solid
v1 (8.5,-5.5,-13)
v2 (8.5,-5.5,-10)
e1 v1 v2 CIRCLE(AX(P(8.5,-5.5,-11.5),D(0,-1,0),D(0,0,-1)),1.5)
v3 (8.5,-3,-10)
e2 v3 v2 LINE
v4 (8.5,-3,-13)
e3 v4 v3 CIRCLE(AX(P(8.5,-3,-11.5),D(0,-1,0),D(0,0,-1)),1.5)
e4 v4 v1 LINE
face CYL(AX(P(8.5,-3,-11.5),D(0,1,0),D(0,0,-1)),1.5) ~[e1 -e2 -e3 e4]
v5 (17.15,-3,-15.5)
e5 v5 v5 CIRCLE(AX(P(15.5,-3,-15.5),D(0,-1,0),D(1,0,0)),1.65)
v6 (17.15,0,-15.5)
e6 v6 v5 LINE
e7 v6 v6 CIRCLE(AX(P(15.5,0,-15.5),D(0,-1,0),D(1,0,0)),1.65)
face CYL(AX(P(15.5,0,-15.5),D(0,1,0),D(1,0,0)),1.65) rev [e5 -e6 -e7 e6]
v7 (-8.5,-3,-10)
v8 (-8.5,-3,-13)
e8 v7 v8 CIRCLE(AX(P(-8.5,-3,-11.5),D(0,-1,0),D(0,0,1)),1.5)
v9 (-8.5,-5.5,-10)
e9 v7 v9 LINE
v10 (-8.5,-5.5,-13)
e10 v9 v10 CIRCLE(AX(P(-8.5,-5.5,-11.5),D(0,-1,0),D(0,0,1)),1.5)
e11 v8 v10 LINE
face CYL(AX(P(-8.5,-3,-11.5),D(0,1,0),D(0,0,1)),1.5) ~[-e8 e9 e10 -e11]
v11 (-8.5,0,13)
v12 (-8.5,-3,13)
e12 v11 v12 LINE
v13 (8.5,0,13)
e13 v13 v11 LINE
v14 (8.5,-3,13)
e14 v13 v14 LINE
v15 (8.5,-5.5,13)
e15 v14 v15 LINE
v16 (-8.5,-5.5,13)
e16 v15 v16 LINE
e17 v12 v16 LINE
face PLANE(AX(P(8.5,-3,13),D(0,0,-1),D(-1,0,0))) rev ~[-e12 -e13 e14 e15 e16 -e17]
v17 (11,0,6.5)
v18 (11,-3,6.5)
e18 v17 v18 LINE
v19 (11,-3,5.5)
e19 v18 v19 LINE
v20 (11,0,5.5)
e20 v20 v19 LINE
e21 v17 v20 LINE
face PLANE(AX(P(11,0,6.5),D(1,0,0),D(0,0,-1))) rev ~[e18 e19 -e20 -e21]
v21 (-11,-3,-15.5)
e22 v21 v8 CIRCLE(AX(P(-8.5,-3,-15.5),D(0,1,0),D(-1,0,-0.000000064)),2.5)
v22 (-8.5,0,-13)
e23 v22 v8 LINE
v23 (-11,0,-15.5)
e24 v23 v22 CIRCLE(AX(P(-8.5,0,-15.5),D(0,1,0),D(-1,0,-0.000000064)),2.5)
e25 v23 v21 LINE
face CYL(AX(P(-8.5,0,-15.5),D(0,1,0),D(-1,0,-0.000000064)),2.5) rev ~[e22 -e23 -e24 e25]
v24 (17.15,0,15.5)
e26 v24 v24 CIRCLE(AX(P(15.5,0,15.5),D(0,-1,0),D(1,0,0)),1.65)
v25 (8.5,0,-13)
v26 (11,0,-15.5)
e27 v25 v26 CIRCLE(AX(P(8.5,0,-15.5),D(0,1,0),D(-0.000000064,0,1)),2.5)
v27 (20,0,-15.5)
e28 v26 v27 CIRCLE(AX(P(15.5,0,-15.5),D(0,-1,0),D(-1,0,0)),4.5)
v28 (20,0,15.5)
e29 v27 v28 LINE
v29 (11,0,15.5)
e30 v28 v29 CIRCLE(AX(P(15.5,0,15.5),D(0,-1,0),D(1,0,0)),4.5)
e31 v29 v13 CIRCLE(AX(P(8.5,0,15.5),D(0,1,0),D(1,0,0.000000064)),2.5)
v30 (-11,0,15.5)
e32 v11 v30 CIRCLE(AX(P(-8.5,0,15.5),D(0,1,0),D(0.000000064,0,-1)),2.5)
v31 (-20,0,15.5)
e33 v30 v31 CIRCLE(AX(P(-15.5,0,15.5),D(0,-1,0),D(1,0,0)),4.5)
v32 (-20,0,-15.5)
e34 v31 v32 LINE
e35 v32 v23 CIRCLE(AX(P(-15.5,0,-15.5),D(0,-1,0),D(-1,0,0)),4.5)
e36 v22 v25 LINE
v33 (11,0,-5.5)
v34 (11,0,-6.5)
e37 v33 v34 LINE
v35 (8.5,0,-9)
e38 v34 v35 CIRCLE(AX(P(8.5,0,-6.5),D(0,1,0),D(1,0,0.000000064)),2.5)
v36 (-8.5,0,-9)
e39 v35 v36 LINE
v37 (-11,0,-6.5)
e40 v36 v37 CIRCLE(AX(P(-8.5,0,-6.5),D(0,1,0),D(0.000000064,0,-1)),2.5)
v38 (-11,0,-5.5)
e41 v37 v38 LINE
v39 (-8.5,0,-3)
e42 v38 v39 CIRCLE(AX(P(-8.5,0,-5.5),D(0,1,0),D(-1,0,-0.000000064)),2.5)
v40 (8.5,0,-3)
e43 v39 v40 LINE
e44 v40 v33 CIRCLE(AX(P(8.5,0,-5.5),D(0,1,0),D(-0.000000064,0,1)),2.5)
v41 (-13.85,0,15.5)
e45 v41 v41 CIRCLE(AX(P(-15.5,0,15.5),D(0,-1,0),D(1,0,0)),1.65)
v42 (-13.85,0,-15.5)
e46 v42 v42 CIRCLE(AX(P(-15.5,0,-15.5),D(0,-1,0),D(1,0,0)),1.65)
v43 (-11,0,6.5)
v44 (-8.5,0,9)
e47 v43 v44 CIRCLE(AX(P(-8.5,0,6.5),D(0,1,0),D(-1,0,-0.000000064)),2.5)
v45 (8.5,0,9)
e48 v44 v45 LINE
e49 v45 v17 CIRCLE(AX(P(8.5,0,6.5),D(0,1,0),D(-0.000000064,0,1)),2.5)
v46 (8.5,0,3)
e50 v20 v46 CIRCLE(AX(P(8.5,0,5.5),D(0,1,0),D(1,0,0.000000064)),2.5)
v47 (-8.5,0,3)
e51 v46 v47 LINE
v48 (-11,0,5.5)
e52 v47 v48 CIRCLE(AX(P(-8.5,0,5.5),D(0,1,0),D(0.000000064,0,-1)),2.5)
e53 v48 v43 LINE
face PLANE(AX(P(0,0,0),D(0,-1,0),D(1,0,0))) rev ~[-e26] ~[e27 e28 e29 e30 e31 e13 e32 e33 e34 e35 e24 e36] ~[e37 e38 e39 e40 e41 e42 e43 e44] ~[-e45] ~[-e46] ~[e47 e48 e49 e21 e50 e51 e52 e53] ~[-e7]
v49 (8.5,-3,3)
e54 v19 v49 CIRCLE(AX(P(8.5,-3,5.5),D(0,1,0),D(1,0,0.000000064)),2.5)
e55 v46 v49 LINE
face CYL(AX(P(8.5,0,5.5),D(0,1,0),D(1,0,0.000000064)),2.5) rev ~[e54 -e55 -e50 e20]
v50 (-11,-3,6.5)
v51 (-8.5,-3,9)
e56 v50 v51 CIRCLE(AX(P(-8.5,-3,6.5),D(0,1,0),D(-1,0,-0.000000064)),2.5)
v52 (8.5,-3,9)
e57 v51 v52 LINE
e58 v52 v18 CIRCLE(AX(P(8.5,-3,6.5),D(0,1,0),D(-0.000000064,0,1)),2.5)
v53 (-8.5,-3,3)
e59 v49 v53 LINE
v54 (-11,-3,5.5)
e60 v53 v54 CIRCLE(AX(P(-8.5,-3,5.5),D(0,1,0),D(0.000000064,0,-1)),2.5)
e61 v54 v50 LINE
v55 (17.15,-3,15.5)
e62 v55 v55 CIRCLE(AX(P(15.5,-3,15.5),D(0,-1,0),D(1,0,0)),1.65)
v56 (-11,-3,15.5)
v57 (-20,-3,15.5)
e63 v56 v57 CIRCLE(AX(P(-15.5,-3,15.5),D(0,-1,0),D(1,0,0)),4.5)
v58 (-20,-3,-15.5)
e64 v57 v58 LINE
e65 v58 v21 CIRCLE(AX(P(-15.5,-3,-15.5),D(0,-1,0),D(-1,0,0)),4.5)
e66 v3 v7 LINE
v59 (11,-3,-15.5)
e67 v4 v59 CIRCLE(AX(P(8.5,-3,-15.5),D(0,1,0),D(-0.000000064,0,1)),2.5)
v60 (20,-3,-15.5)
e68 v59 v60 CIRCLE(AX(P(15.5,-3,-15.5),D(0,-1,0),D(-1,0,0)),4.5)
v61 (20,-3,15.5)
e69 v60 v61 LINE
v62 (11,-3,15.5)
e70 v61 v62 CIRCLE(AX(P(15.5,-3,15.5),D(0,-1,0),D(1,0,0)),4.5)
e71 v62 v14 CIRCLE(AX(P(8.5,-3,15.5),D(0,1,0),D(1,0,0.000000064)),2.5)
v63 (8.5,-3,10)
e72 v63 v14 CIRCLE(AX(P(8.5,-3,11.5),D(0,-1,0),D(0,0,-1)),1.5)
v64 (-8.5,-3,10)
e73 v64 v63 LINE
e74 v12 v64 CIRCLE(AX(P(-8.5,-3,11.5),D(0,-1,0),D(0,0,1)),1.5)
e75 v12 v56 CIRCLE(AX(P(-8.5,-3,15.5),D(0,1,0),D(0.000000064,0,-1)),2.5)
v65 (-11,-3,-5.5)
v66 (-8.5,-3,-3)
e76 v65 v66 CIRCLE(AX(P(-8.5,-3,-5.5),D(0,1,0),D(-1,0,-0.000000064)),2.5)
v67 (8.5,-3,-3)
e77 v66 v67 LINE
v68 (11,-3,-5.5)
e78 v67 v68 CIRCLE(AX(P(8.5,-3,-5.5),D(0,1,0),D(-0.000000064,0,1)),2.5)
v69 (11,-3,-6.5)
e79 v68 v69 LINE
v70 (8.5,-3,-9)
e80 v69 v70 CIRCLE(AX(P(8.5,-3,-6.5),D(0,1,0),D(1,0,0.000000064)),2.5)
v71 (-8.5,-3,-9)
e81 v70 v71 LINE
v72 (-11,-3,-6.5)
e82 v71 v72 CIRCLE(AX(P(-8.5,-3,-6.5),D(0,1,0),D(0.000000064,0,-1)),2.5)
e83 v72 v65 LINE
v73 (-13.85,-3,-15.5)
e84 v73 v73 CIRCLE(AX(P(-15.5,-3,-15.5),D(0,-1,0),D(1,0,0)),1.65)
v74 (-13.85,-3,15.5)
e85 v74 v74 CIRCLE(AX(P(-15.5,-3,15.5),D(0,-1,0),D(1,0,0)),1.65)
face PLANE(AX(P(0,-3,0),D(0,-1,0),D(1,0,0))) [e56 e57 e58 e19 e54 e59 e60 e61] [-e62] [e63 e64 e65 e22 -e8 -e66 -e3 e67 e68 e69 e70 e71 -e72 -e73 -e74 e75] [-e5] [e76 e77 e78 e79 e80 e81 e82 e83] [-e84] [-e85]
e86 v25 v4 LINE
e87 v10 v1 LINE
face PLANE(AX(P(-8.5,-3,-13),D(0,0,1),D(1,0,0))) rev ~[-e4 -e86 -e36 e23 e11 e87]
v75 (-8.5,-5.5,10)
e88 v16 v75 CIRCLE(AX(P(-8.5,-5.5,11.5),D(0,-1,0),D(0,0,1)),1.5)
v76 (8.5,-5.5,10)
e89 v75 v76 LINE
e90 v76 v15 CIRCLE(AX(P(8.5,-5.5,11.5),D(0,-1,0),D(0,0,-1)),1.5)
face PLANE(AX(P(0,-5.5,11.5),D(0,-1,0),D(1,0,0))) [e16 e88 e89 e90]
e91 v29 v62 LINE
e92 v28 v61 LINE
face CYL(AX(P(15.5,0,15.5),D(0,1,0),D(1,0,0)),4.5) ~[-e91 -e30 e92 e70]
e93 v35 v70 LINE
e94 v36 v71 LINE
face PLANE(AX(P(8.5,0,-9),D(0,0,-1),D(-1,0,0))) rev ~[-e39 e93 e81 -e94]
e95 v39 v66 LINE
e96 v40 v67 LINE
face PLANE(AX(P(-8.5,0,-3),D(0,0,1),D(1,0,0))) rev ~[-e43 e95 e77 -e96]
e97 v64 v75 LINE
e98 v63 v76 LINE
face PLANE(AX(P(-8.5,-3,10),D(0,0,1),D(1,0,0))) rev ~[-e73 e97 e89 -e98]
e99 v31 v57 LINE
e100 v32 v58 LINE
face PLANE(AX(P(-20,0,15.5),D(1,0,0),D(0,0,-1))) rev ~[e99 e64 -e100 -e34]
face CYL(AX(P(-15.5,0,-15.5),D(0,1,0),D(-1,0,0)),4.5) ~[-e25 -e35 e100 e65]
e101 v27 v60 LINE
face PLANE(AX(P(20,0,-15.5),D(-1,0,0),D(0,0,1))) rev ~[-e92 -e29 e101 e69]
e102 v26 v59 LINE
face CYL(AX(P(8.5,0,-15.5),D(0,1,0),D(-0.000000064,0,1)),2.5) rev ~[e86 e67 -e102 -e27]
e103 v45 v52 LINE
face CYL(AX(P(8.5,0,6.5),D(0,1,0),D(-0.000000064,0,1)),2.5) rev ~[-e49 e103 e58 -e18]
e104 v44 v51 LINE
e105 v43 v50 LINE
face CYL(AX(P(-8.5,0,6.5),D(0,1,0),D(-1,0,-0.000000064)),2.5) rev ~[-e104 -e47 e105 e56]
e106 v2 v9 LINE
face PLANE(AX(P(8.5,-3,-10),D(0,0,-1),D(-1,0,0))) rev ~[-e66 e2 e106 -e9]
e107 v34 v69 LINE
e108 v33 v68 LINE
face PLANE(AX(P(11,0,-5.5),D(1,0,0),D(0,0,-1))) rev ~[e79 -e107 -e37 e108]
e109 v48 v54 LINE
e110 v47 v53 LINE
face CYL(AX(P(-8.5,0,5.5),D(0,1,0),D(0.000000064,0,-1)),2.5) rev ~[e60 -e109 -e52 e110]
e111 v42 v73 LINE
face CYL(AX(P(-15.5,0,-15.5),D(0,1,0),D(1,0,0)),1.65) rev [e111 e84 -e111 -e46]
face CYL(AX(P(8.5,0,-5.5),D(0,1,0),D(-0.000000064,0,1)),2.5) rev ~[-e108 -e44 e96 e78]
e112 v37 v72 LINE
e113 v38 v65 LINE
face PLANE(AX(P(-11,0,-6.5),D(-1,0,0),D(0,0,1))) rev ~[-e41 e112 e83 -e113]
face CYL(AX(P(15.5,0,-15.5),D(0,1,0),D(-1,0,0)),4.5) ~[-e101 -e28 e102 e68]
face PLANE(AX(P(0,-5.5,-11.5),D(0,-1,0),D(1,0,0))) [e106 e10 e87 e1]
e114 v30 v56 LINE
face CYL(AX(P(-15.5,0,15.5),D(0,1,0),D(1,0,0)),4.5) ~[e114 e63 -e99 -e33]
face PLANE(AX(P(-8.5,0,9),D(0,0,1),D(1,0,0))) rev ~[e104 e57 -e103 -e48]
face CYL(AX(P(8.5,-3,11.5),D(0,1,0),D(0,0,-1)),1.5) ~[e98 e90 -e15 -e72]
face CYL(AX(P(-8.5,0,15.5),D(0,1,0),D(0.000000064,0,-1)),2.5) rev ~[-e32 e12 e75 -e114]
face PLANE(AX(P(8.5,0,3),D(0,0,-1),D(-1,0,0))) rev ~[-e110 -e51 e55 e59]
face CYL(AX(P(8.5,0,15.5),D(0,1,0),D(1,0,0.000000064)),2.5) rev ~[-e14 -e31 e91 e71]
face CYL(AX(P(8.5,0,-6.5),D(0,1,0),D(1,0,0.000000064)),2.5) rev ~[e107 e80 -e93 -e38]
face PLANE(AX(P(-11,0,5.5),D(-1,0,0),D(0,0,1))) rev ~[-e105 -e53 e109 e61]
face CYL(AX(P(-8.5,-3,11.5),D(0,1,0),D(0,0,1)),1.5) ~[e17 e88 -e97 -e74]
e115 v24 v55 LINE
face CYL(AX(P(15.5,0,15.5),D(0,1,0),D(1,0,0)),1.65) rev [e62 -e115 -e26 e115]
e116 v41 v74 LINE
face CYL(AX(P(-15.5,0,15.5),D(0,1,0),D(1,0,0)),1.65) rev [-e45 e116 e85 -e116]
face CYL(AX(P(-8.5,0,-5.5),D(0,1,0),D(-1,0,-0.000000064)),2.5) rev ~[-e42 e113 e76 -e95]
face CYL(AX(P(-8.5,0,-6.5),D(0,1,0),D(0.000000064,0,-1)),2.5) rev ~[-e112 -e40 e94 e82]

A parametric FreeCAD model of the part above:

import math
import FreeCAD as App
import Part
import Sketcher

doc = App.newDocument("Part")
body = doc.addObject("PartDesign::Body", "Body")

sketch1 = doc.addObject("Sketcher::SketchObject", "Sketch")
body.addObject(sketch1)
sketch1.AttachmentSupport = (doc.XZ_Plane, [""])
sketch1.MapMode = "FlatFace"
sketch1.addGeometry([
    Part.ArcOfCircle(Part.Circle(App.Vector(-8.5, 15.5, 0), App.Vector(0, 0, 1), 2.5), math.radians(180), math.radians(270)),
    Part.ArcOfCircle(Part.Circle(App.Vector(-15.5, 15.5, 0), App.Vector(0, 0, 1), 4.5), math.radians(0), math.radians(180)),
    Part.LineSegment(App.Vector(-20, 15.5, 0), App.Vector(-20, -15.5, 0)),
    Part.ArcOfCircle(Part.Circle(App.Vector(-15.5, -15.5, 0), App.Vector(0, 0, 1), 4.5), math.radians(180), math.radians(360)),
    Part.ArcOfCircle(Part.Circle(App.Vector(-8.5, -15.5, 0), App.Vector(0, 0, 1), 2.5), math.radians(90), math.radians(180)),
    Part.LineSegment(App.Vector(-8.5, -13, 0), App.Vector(8.5, -13, 0)),
    Part.ArcOfCircle(Part.Circle(App.Vector(8.5, -15.5, 0), App.Vector(0, 0, 1), 2.5), math.radians(0), math.radians(90)),
    Part.ArcOfCircle(Part.Circle(App.Vector(15.5, -15.5, 0), App.Vector(0, 0, 1), 4.5), math.radians(180), math.radians(360)),
    Part.LineSegment(App.Vector(20, -15.5, 0), App.Vector(20, 15.5, 0)),
    Part.ArcOfCircle(Part.Circle(App.Vector(15.5, 15.5, 0), App.Vector(0, 0, 1), 4.5), math.radians(0), math.radians(180)),
    Part.ArcOfCircle(Part.Circle(App.Vector(8.5, 15.5, 0), App.Vector(0, 0, 1), 2.5), math.radians(-90), math.radians(0)),
    Part.LineSegment(App.Vector(8.5, 13, 0), App.Vector(-8.5, 13, 0)),
    Part.Circle(App.Vector(-15.5, -15.5, 0), App.Vector(0, 0, 1), 1.6),
    Part.Circle(App.Vector(15.5, -15.5, 0), App.Vector(0, 0, 1), 1.6),
    Part.ArcOfCircle(Part.Circle(App.Vector(-8.5, -5.5, 0), App.Vector(0, 0, 1), 2.5), math.radians(90), math.radians(180)),
    Part.LineSegment(App.Vector(-8.5, -3, 0), App.Vector(8.5, -3, 0)),
    Part.ArcOfCircle(Part.Circle(App.Vector(8.5, -5.5, 0), App.Vector(0, 0, 1), 2.5), math.radians(0), math.radians(90)),
    Part.LineSegment(App.Vector(11, -5.5, 0), App.Vector(11, -6.5, 0)),
    Part.ArcOfCircle(Part.Circle(App.Vector(8.5, -6.5, 0), App.Vector(0, 0, 1), 2.5), math.radians(-90), math.radians(0)),
    Part.LineSegment(App.Vector(8.5, -9, 0), App.Vector(-8.5, -9, 0)),
    Part.ArcOfCircle(Part.Circle(App.Vector(-8.5, -6.5, 0), App.Vector(0, 0, 1), 2.5), math.radians(180), math.radians(270)),
    Part.LineSegment(App.Vector(-11, -6.5, 0), App.Vector(-11, -5.5, 0)),
    Part.Circle(App.Vector(-15.5, 15.5, 0), App.Vector(0, 0, 1), 1.6),
    Part.LineSegment(App.Vector(11, 6.5, 0), App.Vector(11, 5.5, 0)),
    Part.ArcOfCircle(Part.Circle(App.Vector(8.5, 5.5, 0), App.Vector(0, 0, 1), 2.5), math.radians(-90), math.radians(0)),
    Part.LineSegment(App.Vector(8.5, 3, 0), App.Vector(-8.5, 3, 0)),
    Part.ArcOfCircle(Part.Circle(App.Vector(-8.5, 5.5, 0), App.Vector(0, 0, 1), 2.5), math.radians(180), math.radians(270)),
    Part.LineSegment(App.Vector(-11, 5.5, 0), App.Vector(-11, 6.5, 0)),
    Part.ArcOfCircle(Part.Circle(App.Vector(-8.5, 6.5, 0), App.Vector(0, 0, 1), 2.5), math.radians(90), math.radians(180)),
    Part.LineSegment(App.Vector(-8.5, 9, 0), App.Vector(8.5, 9, 0)),
    Part.ArcOfCircle(Part.Circle(App.Vector(8.5, 6.5, 0), App.Vector(0, 0, 1), 2.5), math.radians(0), math.radians(90)),
    Part.Circle(App.Vector(15.5, 15.5, 0), App.Vector(0, 0, 1), 1.6),
], False)
sketch1.addConstraint([
    Sketcher.Constraint("Tangent", 0, 1, 1, 1),
    Sketcher.Constraint("Tangent", 1, 2, 2, 1),
    Sketcher.Constraint("Tangent", 2, 2, 3, 1),
    Sketcher.Constraint("Tangent", 3, 2, 4, 2),
    Sketcher.Constraint("Tangent", 4, 1, 5, 1),
    Sketcher.Constraint("Tangent", 5, 2, 6, 2),
    Sketcher.Constraint("Tangent", 6, 1, 7, 1),
    Sketcher.Constraint("Tangent", 7, 2, 8, 1),
    Sketcher.Constraint("Tangent", 8, 2, 9, 1),
    Sketcher.Constraint("Tangent", 9, 2, 10, 2),
    Sketcher.Constraint("Tangent", 10, 1, 11, 1),
    Sketcher.Constraint("Tangent", 11, 2, 0, 2),
    Sketcher.Constraint("Tangent", 14, 1, 15, 1),
    Sketcher.Constraint("Tangent", 15, 2, 16, 2),
    Sketcher.Constraint("Tangent", 16, 1, 17, 1),
    Sketcher.Constraint("Tangent", 17, 2, 18, 2),
    Sketcher.Constraint("Tangent", 18, 1, 19, 1),
    Sketcher.Constraint("Tangent", 19, 2, 20, 2),
    Sketcher.Constraint("Tangent", 20, 1, 21, 1),
    Sketcher.Constraint("Tangent", 21, 2, 14, 2),
    Sketcher.Constraint("Tangent", 23, 2, 24, 2),
    Sketcher.Constraint("Tangent", 24, 1, 25, 1),
    Sketcher.Constraint("Tangent", 25, 2, 26, 2),
    Sketcher.Constraint("Tangent", 26, 1, 27, 1),
    Sketcher.Constraint("Tangent", 27, 2, 28, 2),
    Sketcher.Constraint("Tangent", 28, 1, 29, 1),
    Sketcher.Constraint("Tangent", 29, 2, 30, 2),
    Sketcher.Constraint("Tangent", 30, 1, 23, 1),
    Sketcher.Constraint("Vertical", 2),
    Sketcher.Constraint("Horizontal", 5),
    Sketcher.Constraint("Vertical", 8),
    Sketcher.Constraint("Horizontal", 11),
    Sketcher.Constraint("Horizontal", 15),
    Sketcher.Constraint("Vertical", 17),
    Sketcher.Constraint("Horizontal", 19),
    Sketcher.Constraint("Vertical", 21),
    Sketcher.Constraint("Vertical", 23),
    Sketcher.Constraint("Horizontal", 25),
    Sketcher.Constraint("Vertical", 27),
    Sketcher.Constraint("Horizontal", 29),
    Sketcher.Constraint("Coincident", 12, 3, 3, 3),
    Sketcher.Constraint("Coincident", 13, 3, 7, 3),
    Sketcher.Constraint("Coincident", 22, 3, 1, 3),
    Sketcher.Constraint("Coincident", 31, 3, 9, 3),
    Sketcher.Constraint("Equal", 1, 3),
    Sketcher.Constraint("Equal", 0, 4),
    Sketcher.Constraint("Equal", 4, 6),
    Sketcher.Constraint("Equal", 3, 7),
    Sketcher.Constraint("Equal", 7, 9),
    Sketcher.Constraint("Equal", 6, 10),
    Sketcher.Constraint("Equal", 12, 13),
    Sketcher.Constraint("Equal", 10, 14),
    Sketcher.Constraint("Equal", 14, 16),
    Sketcher.Constraint("Equal", 16, 18),
    Sketcher.Constraint("Equal", 18, 20),
    Sketcher.Constraint("Equal", 13, 22),
    Sketcher.Constraint("Equal", 20, 24),
    Sketcher.Constraint("Equal", 24, 26),
    Sketcher.Constraint("Equal", 26, 28),
    Sketcher.Constraint("Equal", 28, 30),
    Sketcher.Constraint("Equal", 22, 31),
    Sketcher.Constraint("Symmetric", 0, 3, 6, 3, -1, 1),
    Sketcher.Constraint("Symmetric", 14, 3, 24, 3, -1, 1),
    Sketcher.Constraint("Symmetric", 18, 3, 28, 3, -1, 1),
    Sketcher.Constraint("Horizontal", 0, 3, 1, 3),
    Sketcher.Constraint("Horizontal", 3, 3, 4, 3),
    Sketcher.Constraint("Horizontal", 6, 3, 7, 3),
    Sketcher.Constraint("Horizontal", 1, 3, 9, 3),
    Sketcher.Constraint("Vertical", 4, 3, 14, 3),
    Sketcher.Constraint("Vertical", 10, 3, 16, 3),
    Sketcher.Constraint("Diameter", 12, 3.3),
    Sketcher.Constraint("Radius", 0, 2.5),
    Sketcher.Constraint("Radius", 1, 4.5),
    Sketcher.Constraint("DistanceX", 5, 1, 5, 2, 17.0),
    Sketcher.Constraint("DistanceY", 2, 2, 2, 1, 31.0),
    Sketcher.Constraint("DistanceY", 17, 2, 17, 1, 1.0),
    Sketcher.Constraint("DistanceY", 14, 1, -1, 1, 3.0),
])
pad1 = doc.addObject("PartDesign::Pad", "Pad")
body.addObject(pad1)
pad1.Profile = sketch1
pad1.Length = 3

sketch2 = doc.addObject("Sketcher::SketchObject", "Sketch001")
body.addObject(sketch2)
sketch2.AttachmentSupport = (doc.XZ_Plane, [""])
sketch2.MapMode = "FlatFace"
sketch2.AttachmentOffset = App.Placement(App.Vector(0, 0, 3), App.Rotation())
sketch2.addGeometry([
    Part.LineSegment(App.Vector(8.5, -10, 0), App.Vector(-8.5, -10, 0)),
    Part.ArcOfCircle(Part.Circle(App.Vector(-8.5, -11.5, 0), App.Vector(0, 0, 1), 1.5), math.radians(90), math.radians(270)),
    Part.LineSegment(App.Vector(-8.5, -13, 0), App.Vector(8.5, -13, 0)),
    Part.ArcOfCircle(Part.Circle(App.Vector(8.5, -11.5, 0), App.Vector(0, 0, 1), 1.5), math.radians(-90), math.radians(90)),
    Part.ArcOfCircle(Part.Circle(App.Vector(-8.5, 11.5, 0), App.Vector(0, 0, 1), 1.5), math.radians(90), math.radians(270)),
    Part.LineSegment(App.Vector(-8.5, 10, 0), App.Vector(8.5, 10, 0)),
    Part.ArcOfCircle(Part.Circle(App.Vector(8.5, 11.5, 0), App.Vector(0, 0, 1), 1.5), math.radians(-90), math.radians(90)),
    Part.LineSegment(App.Vector(8.5, 13, 0), App.Vector(-8.5, 13, 0)),
], False)
sketch2.addConstraint([
    Sketcher.Constraint("Tangent", 0, 2, 1, 1),
    Sketcher.Constraint("Tangent", 1, 2, 2, 1),
    Sketcher.Constraint("Tangent", 2, 2, 3, 1),
    Sketcher.Constraint("Tangent", 3, 2, 0, 1),
    Sketcher.Constraint("Tangent", 4, 2, 5, 1),
    Sketcher.Constraint("Tangent", 5, 2, 6, 1),
    Sketcher.Constraint("Tangent", 6, 2, 7, 1),
    Sketcher.Constraint("Tangent", 7, 2, 4, 1),
    Sketcher.Constraint("Horizontal", 0),
    Sketcher.Constraint("Horizontal", 2),
    Sketcher.Constraint("Horizontal", 5),
    Sketcher.Constraint("Horizontal", 7),
    Sketcher.Constraint("Equal", 3, 4),
    Sketcher.Constraint("Symmetric", 3, 3, 4, 3, -1, 1),
    Sketcher.Constraint("Vertical", 1, 3, 4, 3),
    Sketcher.Constraint("Vertical", 3, 3, 6, 3),
    Sketcher.Constraint("Radius", 1, 1.5),
    Sketcher.Constraint("DistanceX", 0, 2, 0, 1, 17.0),
    Sketcher.Constraint("DistanceY", 0, 2, -1, 1, 10.0),
])
pad2 = doc.addObject("PartDesign::Pad", "Pad001")
body.addObject(pad2)
pad2.Profile = sketch2
pad2.Length = 2.5

doc.recompute()
